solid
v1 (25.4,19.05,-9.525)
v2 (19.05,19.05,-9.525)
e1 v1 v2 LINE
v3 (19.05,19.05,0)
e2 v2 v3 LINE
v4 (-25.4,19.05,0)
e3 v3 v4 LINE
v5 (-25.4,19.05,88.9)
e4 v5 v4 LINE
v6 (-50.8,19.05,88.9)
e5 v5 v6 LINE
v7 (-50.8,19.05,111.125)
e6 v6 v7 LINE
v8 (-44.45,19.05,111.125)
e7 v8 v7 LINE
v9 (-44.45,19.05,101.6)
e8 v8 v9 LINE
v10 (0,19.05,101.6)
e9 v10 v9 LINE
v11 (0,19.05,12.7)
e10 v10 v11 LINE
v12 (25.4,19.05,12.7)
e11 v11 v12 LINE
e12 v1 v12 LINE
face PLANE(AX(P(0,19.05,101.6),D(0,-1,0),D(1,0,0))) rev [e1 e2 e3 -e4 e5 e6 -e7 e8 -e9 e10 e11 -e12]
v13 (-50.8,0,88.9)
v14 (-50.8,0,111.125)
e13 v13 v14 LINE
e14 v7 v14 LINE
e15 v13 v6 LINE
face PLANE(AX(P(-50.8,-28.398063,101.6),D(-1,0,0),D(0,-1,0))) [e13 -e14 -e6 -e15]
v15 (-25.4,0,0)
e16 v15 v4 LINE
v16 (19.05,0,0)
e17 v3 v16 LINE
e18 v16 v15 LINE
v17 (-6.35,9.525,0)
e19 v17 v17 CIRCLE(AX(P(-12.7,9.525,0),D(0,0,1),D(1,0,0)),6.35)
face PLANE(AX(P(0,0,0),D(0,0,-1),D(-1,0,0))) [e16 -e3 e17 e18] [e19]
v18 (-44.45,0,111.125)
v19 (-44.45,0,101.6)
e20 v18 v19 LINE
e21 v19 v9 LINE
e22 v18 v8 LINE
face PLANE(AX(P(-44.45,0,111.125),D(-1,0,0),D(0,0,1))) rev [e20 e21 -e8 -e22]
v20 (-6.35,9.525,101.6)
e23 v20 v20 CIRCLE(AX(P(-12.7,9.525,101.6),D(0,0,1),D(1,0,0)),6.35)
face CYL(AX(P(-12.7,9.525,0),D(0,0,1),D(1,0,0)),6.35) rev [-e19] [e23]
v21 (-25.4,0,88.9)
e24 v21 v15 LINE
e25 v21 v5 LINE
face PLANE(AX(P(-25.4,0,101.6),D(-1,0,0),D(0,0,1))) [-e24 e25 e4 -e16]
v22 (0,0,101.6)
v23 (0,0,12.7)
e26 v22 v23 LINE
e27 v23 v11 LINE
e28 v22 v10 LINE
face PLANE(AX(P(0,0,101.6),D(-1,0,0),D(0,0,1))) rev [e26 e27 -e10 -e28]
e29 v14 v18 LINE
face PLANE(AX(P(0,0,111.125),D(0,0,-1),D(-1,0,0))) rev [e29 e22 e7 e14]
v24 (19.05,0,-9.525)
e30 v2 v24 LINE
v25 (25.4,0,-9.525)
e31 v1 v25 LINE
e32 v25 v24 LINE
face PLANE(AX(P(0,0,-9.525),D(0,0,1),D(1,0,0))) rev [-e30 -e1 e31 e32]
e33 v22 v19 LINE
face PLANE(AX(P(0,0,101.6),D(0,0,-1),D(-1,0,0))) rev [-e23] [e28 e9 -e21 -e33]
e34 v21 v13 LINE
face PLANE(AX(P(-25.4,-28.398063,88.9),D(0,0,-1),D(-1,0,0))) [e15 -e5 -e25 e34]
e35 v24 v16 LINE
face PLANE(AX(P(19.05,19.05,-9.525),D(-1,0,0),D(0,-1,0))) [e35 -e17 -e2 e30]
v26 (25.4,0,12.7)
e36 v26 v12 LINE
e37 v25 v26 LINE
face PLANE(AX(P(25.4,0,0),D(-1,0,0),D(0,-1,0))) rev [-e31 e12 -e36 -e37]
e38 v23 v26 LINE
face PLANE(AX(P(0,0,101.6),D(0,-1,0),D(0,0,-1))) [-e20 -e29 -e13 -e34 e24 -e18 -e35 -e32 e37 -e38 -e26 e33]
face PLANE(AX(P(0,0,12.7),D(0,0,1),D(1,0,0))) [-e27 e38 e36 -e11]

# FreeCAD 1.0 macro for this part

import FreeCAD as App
import Part
import Sketcher

V = App.Vector
Q = App.Units.Quantity

doc = App.newDocument("Part")
params = doc.addObject("Spreadsheet::Sheet", "Params")
for row, (alias, value) in enumerate([
    ("sketch1_width", "1 in"),
    ("sketch1_height", "0.75 in"),
    ("pad1_length", "4 in"),
    ("sketch2_diameter", "0.5 in"),
    ("pocket1_length", "4 in"),
    ("sketch3_width", "1 in"),
    ("sketch3_height", "0.5 in"),
    ("pad2_length", "0.75 in"),
    ("sketch4_width", "0.25 in"),
    ("sketch4_height", "0.75 in"),
    ("pad3_length", "0.375 in"),
    ("sketch5_width", "1 in"),
    ("sketch5_height", "0.5 in"),
    ("pad4_length", "0.75 in"),
    ("sketch6_width", "0.25 in"),
    ("sketch6_height", "0.75 in"),
    ("pad5_length", "0.375 in"),
], start=1):
    params.set(f"A{row}", alias)
    params.set(f"B{row}", "=" + value)
    params.setAlias(f"B{row}", alias)

body = doc.addObject("PartDesign::Body", "Body")

sketch1 = body.newObject("Sketcher::SketchObject", "Sketch")
sketch1.AttachmentSupport = (doc.getObject("XY_Plane"), [""])
sketch1.MapMode = "FlatFace"
sketch1.addGeometry([
    Part.LineSegment(V(-25, 19, 0), V(-25, 0, 0)),
    Part.LineSegment(V(-25, 0, 0), V(0, 0, 0)),
    Part.LineSegment(V(0, 0, 0), V(0, 19, 0)),
    Part.LineSegment(V(0, 19, 0), V(-25, 19, 0)),
], False)
sketch1.addConstraint([
    Sketcher.Constraint("Coincident", 0, 2, 1, 1),
    Sketcher.Constraint("Coincident", 1, 2, 2, 1),
    Sketcher.Constraint("Coincident", 2, 2, 3, 1),
    Sketcher.Constraint("Coincident", 3, 2, 0, 1),
    Sketcher.Constraint("Vertical", 0),
    Sketcher.Constraint("Horizontal", 1),
    Sketcher.Constraint("Vertical", 2),
    Sketcher.Constraint("Horizontal", 3),
    Sketcher.Constraint("Coincident", 1, 2, -1, 1),
    Sketcher.Constraint("DistanceX", 1, 1, 1, 2, Q("1 in")),
    Sketcher.Constraint("DistanceY", 0, 2, 0, 1, Q("0.75 in")),
])
sketch1.setExpression("Constraints[9]", "Params.sketch1_width")
sketch1.setExpression("Constraints[10]", "Params.sketch1_height")
pad1 = body.newObject("PartDesign::Pad", "Pad")
pad1.Profile = sketch1
pad1.setExpression("Length", "Params.pad1_length")

sketch2 = body.newObject("Sketcher::SketchObject", "Sketch001")
sketch2.AttachmentSupport = (doc.getObject("XY_Plane"), [""])
sketch2.MapMode = "FlatFace"
sketch2.AttachmentOffset = App.Placement(V(0, 0, 4 * 25.4), App.Rotation())
sketch2.addGeometry(Part.Circle(V(-13, 10, 0), V(0, 0, 1), 6), False)
sketch2.addConstraint([
    Sketcher.Constraint("Diameter", 0, Q("0.5 in")),
    Sketcher.Constraint("DistanceX", 0, 3, -1, 1, Q("0.5 in")),
    Sketcher.Constraint("DistanceY", -1, 1, 0, 3, Q("0.375 in")),
])
sketch2.setExpression("Constraints[0]", "Params.sketch2_diameter")
pocket1 = body.newObject("PartDesign::Pocket", "Pocket")
pocket1.Profile = sketch2
pocket1.setExpression("Length", "Params.pocket1_length")

sketch3 = body.newObject("Sketcher::SketchObject", "Sketch002")
sketch3.AttachmentSupport = (doc.getObject("XZ_Plane"), [""])
sketch3.MapMode = "FlatFace"
sketch3.AttachmentOffset = App.Placement(V(0, 0, -0.75 * 25.4), App.Rotation())
sketch3.addGeometry([
    Part.LineSegment(V(-51, 89, 0), V(-51, 102, 0)),
    Part.LineSegment(V(-51, 102, 0), V(-25, 102, 0)),
    Part.LineSegment(V(-25, 102, 0), V(-25, 89, 0)),
    Part.LineSegment(V(-25, 89, 0), V(-51, 89, 0)),
], False)
sketch3.addConstraint([
    Sketcher.Constraint("Coincident", 0, 2, 1, 1),
    Sketcher.Constraint("Coincident", 1, 2, 2, 1),
    Sketcher.Constraint("Coincident", 2, 2, 3, 1),
    Sketcher.Constraint("Coincident", 3, 2, 0, 1),
    Sketcher.Constraint("Vertical", 0),
    Sketcher.Constraint("Horizontal", 1),
    Sketcher.Constraint("Vertical", 2),
    Sketcher.Constraint("Horizontal", 3),
    Sketcher.Constraint("DistanceX", 1, 1, 1, 2, Q("1 in")),
    Sketcher.Constraint("DistanceY", 0, 1, 0, 2, Q("0.5 in")),
    Sketcher.Constraint("DistanceX", 0, 2, -1, 1, Q("2 in")),
    Sketcher.Constraint("DistanceY", -1, 1, 0, 2, Q("4 in")),
])
sketch3.setExpression("Constraints[8]", "Params.sketch3_width")
sketch3.setExpression("Constraints[9]", "Params.sketch3_height")
pad2 = body.newObject("PartDesign::Pad", "Pad001")
pad2.Profile = sketch3
pad2.setExpression("Length", "Params.pad2_length")

sketch4 = body.newObject("Sketcher::SketchObject", "Sketch003")
sketch4.AttachmentSupport = (doc.getObject("XY_Plane"), [""])
sketch4.MapMode = "FlatFace"
sketch4.AttachmentOffset = App.Placement(V(0, 0, 4 * 25.4), App.Rotation())
sketch4.addGeometry([
    Part.LineSegment(V(-51, 19, 0), V(-51, 0, 0)),
    Part.LineSegment(V(-51, 0, 0), V(-44, 0, 0)),
    Part.LineSegment(V(-44, 0, 0), V(-44, 19, 0)),
    Part.LineSegment(V(-44, 19, 0), V(-51, 19, 0)),
], False)
sketch4.addConstraint([
    Sketcher.Constraint("Coincident", 0, 2, 1, 1),
    Sketcher.Constraint("Coincident", 1, 2, 2, 1),
    Sketcher.Constraint("Coincident", 2, 2, 3, 1),
    Sketcher.Constraint("Coincident", 3, 2, 0, 1),
    Sketcher.Constraint("Vertical", 0),
    Sketcher.Constraint("Horizontal", 1),
    Sketcher.Constraint("Vertical", 2),
    Sketcher.Constraint("Horizontal", 3),
    Sketcher.Constraint("PointOnObject", 0, 2, -1),
    Sketcher.Constraint("DistanceX", 0, 2, -1, 1, Q("2 in")),
    Sketcher.Constraint("DistanceX", 1, 1, 1, 2, Q("0.25 in")),
    Sketcher.Constraint("DistanceY", 0, 2, 0, 1, Q("0.75 in")),
])
sketch4.setExpression("Constraints[10]", "Params.sketch4_width")
sketch4.setExpression("Constraints[11]", "Params.sketch4_height")
pad3 = body.newObject("PartDesign::Pad", "Pad002")
pad3.Profile = sketch4
pad3.setExpression("Length", "Params.pad3_length")

sketch5 = body.newObject("Sketcher::SketchObject", "Sketch004")
sketch5.AttachmentSupport = (doc.getObject("XZ_Plane"), [""])
sketch5.MapMode = "FlatFace"
sketch5.AttachmentOffset = App.Placement(V(0, 0, -0.75 * 25.4), App.Rotation())
sketch5.addGeometry([
    Part.LineSegment(V(0, 0, 0), V(0, 13, 0)),
    Part.LineSegment(V(0, 13, 0), V(25, 13, 0)),
    Part.LineSegment(V(25, 13, 0), V(25, 0, 0)),
    Part.LineSegment(V(25, 0, 0), V(0, 0, 0)),
], False)
sketch5.addConstraint([
    Sketcher.Constraint("Coincident", 0, 2, 1, 1),
    Sketcher.Constraint("Coincident", 1, 2, 2, 1),
    Sketcher.Constraint("Coincident", 2, 2, 3, 1),
    Sketcher.Constraint("Coincident", 3, 2, 0, 1),
    Sketcher.Constraint("Vertical", 0),
    Sketcher.Constraint("Horizontal", 1),
    Sketcher.Constraint("Vertical", 2),
    Sketcher.Constraint("Horizontal", 3),
    Sketcher.Constraint("Coincident", 3, 2, -1, 1),
    Sketcher.Constraint("DistanceX", 1, 1, 1, 2, Q("1 in")),
    Sketcher.Constraint("DistanceY", 0, 1, 0, 2, Q("0.5 in")),
])
sketch5.setExpression("Constraints[9]", "Params.sketch5_width")
sketch5.setExpression("Constraints[10]", "Params.sketch5_height")
pad4 = body.newObject("PartDesign::Pad", "Pad003")
pad4.Profile = sketch5
pad4.setExpression("Length", "Params.pad4_length")

sketch6 = body.newObject("Sketcher::SketchObject", "Sketch005")
sketch6.AttachmentSupport = (doc.getObject("XY_Plane"), [""])
sketch6.MapMode = "FlatFace"
sketch6.addGeometry([
    Part.LineSegment(V(25, 19, 0), V(25, 0, 0)),
    Part.LineSegment(V(25, 0, 0), V(19, 0, 0)),
    Part.LineSegment(V(19, 0, 0), V(19, 19, 0)),
    Part.LineSegment(V(19, 19, 0), V(25, 19, 0)),
], False)
sketch6.addConstraint([
    Sketcher.Constraint("Coincident", 0, 2, 1, 1),
    Sketcher.Constraint("Coincident", 1, 2, 2, 1),
    Sketcher.Constraint("Coincident", 2, 2, 3, 1),
    Sketcher.Constraint("Coincident", 3, 2, 0, 1),
    Sketcher.Constraint("Vertical", 0),
    Sketcher.Constraint("Horizontal", 1),
    Sketcher.Constraint("Vertical", 2),
    Sketcher.Constraint("Horizontal", 3),
    Sketcher.Constraint("PointOnObject", 0, 2, -1),
    Sketcher.Constraint("DistanceX", -1, 1, 0, 2, Q("1 in")),
    Sketcher.Constraint("DistanceX", 1, 2, 1, 1, Q("0.25 in")),
    Sketcher.Constraint("DistanceY", 0, 2, 0, 1, Q("0.75 in")),
])
sketch6.setExpression("Constraints[10]", "Params.sketch6_width")
sketch6.setExpression("Constraints[11]", "Params.sketch6_height")
pad5 = body.newObject("PartDesign::Pad", "Pad004")
pad5.Profile = sketch6
pad5.setExpression("Length", "Params.pad5_length")
pad5.Reversed = True

doc.recompute()
